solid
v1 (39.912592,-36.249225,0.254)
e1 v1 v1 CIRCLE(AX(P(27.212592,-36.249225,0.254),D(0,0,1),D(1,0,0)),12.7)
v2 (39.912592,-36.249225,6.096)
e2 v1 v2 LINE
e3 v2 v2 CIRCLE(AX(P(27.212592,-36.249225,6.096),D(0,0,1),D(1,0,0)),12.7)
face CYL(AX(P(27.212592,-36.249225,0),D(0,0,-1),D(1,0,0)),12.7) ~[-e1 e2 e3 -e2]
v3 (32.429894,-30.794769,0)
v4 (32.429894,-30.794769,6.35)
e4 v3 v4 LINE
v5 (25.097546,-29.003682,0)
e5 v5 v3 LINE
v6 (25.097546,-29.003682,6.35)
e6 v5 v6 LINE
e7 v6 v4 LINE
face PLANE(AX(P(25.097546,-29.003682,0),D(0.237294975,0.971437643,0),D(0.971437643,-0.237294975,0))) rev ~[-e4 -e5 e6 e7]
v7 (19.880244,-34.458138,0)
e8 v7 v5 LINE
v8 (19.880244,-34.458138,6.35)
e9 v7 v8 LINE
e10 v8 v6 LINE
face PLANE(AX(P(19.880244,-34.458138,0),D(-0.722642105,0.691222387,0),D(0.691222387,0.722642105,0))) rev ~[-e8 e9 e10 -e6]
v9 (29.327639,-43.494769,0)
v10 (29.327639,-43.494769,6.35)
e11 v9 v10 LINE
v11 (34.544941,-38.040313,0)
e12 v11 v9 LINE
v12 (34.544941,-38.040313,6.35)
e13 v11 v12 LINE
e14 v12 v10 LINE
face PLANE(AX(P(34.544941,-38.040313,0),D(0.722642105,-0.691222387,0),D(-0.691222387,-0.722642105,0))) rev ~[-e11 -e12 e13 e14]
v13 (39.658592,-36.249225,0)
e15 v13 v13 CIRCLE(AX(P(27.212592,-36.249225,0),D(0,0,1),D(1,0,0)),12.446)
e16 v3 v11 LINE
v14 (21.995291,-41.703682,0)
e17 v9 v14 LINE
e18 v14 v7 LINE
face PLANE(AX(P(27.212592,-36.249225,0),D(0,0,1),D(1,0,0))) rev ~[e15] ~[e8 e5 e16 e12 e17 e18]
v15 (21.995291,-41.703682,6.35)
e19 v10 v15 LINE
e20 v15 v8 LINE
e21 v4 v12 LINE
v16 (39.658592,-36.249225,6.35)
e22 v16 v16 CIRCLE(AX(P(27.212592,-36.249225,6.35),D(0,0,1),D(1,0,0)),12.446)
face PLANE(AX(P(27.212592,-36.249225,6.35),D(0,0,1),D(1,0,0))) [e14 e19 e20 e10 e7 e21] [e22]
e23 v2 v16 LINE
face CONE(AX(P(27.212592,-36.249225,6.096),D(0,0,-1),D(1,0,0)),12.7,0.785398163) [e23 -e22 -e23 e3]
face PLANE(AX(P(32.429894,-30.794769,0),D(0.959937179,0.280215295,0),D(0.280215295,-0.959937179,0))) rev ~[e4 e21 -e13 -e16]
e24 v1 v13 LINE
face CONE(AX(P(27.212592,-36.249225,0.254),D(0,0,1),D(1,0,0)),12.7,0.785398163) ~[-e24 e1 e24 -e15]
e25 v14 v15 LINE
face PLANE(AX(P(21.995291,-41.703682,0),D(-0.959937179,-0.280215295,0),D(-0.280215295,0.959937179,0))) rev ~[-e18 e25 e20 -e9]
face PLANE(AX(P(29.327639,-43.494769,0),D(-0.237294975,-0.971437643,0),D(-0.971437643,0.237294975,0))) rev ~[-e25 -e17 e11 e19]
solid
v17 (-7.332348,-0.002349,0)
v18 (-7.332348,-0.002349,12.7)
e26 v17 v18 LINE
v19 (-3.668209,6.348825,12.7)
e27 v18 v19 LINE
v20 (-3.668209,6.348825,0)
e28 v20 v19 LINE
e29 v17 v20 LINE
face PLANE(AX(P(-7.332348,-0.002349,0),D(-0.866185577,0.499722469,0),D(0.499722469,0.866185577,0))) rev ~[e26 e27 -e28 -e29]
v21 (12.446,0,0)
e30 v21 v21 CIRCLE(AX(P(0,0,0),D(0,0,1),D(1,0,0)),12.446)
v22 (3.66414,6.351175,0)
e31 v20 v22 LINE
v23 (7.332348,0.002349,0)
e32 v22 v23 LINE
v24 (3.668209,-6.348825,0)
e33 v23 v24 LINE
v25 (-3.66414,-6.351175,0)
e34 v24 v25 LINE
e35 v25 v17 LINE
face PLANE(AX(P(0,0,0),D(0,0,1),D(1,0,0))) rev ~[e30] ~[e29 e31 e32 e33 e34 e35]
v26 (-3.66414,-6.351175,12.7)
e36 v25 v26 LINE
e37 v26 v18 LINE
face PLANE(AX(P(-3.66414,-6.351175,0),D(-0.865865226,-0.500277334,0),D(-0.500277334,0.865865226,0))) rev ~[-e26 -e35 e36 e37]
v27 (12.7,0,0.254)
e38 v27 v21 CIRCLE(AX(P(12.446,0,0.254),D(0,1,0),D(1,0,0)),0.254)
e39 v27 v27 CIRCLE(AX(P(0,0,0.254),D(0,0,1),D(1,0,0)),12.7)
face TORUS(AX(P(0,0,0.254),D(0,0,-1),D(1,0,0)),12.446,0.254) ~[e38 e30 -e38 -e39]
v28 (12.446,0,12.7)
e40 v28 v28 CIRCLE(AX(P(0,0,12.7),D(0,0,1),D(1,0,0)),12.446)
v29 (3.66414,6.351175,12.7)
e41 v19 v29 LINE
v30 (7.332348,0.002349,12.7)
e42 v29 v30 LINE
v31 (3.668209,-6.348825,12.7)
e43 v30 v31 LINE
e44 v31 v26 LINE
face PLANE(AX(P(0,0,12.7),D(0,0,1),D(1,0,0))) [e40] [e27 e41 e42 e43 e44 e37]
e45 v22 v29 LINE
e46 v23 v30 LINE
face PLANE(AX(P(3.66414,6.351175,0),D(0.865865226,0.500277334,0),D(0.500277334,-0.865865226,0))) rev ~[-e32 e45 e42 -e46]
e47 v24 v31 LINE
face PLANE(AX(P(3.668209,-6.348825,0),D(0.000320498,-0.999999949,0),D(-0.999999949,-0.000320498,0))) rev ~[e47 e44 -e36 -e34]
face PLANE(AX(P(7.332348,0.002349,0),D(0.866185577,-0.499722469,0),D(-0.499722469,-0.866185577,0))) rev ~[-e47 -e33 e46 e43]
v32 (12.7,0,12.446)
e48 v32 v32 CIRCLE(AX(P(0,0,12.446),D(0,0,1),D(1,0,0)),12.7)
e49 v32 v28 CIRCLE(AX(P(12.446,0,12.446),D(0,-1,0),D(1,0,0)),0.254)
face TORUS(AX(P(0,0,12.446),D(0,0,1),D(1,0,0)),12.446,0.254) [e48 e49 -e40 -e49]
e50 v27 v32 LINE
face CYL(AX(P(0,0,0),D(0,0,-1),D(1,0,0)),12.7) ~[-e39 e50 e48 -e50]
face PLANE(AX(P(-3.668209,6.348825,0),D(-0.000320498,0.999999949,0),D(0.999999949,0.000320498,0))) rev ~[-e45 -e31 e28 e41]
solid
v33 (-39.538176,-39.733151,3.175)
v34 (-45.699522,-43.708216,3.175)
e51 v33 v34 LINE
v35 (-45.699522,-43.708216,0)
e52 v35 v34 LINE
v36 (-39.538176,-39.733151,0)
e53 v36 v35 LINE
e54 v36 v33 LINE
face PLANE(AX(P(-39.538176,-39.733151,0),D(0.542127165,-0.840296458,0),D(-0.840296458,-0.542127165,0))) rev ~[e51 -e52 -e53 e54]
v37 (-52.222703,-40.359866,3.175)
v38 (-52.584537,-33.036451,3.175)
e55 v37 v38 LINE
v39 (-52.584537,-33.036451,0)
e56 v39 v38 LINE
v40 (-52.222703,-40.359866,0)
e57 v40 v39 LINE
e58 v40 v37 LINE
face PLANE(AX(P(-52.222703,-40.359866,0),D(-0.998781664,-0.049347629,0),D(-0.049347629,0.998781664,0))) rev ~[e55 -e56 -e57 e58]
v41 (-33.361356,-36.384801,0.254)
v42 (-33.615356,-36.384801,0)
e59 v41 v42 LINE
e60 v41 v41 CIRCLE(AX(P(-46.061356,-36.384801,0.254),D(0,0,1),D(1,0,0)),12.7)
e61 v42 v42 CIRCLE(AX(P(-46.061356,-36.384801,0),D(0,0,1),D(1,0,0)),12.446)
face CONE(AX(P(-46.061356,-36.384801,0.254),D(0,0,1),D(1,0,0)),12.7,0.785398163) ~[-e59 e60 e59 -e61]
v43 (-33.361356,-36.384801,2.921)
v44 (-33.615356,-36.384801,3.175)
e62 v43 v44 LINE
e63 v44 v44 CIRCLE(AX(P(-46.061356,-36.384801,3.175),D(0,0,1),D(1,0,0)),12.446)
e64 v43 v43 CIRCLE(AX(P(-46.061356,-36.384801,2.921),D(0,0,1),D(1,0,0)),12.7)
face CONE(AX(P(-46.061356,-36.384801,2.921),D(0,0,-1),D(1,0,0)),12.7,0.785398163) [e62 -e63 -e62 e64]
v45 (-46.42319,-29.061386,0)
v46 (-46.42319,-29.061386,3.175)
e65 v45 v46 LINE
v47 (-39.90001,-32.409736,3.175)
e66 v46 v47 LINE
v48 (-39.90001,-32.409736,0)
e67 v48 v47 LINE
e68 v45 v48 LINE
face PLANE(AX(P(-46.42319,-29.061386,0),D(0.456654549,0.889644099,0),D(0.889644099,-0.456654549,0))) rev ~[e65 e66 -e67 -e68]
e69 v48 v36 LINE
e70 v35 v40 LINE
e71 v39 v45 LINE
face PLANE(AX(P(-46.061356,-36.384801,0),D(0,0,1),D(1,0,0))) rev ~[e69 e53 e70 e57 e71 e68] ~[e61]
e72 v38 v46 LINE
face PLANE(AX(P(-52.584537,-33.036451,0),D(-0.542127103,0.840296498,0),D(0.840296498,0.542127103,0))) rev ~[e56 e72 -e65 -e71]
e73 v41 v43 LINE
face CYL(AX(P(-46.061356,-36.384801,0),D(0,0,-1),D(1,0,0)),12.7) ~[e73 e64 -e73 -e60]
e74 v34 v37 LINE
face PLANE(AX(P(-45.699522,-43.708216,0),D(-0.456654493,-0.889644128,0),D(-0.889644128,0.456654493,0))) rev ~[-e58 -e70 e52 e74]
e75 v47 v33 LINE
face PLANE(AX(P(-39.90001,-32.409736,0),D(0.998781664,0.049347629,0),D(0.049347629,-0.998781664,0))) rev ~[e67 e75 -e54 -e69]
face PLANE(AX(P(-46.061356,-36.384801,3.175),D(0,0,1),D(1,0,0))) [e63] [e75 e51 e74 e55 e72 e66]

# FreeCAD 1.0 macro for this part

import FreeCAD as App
import Part
import Sketcher

V = App.Vector
Q = App.Units.Quantity


def edges_at(feature, points):
    """Names of the edges that pass closest to the given points."""
    edges = feature.Shape.Edges
    near = lambda p: min(range(len(edges)), key=lambda i: edges[i].distToShape(Part.Vertex(*p))[0])
    return sorted({f"Edge{near(p) + 1}" for p in points})


def add_polygon(sketch, points):
    """Adds a closed chain of lines whose ends are joined by coincident constraints."""
    first, n = sketch.GeometryCount, len(points)
    for a, b in zip(points, points[1:] + points[:1]):
        sketch.addGeometry(Part.LineSegment(App.Vector(*a, 0), App.Vector(*b, 0)), False)
    for i in range(n):
        sketch.addConstraint(Sketcher.Constraint("Coincident", first + i, 2, first + (i + 1) % n, 1))

doc = App.newDocument("Part")
body = doc.addObject("PartDesign::Body", "Body")

# Sketch on XY plane
sketch1 = body.newObject("Sketcher::SketchObject", "Sketch")
sketch1.AttachmentSupport = (doc.getObject("XY_Plane"), [""])
sketch1.MapMode = "FlatFace"
sketch1.addGeometry(Part.Circle(V(0, 0, 0), V(0, 0, 1), 13), False)  # 0
add_polygon(sketch1, [(-4, 6), (4, 6), (7, 0), (4, -6), (-4, -6), (-7, 0)])  # lines 1-6
sketch1.addConstraint([
    Sketcher.Constraint("Coincident", 0, 3, -1, 1),
    Sketcher.Constraint("Symmetric", 1, 2, 4, 2, -1, 1),
    Sketcher.Constraint("Symmetric", 2, 2, 5, 2, -1, 1),
    Sketcher.Constraint("Symmetric", 3, 2, 6, 2, -1, 1),
    Sketcher.Constraint("Equal", 1, 2),
    Sketcher.Constraint("Equal", 2, 3),
    Sketcher.Constraint("Diameter", 0, Q("1 in")),
    Sketcher.Constraint("DistanceY", 3, 2, 1, 2, Q("0.5 in")),
    Sketcher.Constraint("Distance", 1, Q("7.332349 mm")),
    Sketcher.Constraint("DistanceX", -1, 1, 1, 2, Q("3.66414 mm")),
    Sketcher.Constraint("DistanceY", -1, 1, 2, 2, Q("0.002349 mm")),
])
pad1 = body.newObject("PartDesign::Pad", "Pad")
pad1.Profile = sketch1
pad1.Length = Q("0.5 in")
doc.recompute()

fillet = body.newObject("PartDesign::Fillet", "Fillet")
fillet.Base = (pad1, edges_at(pad1, [(-12.7, 0, 12.7), (-12.7, 0, 0)]))
fillet.Radius = Q("0.01 in")
body2 = doc.addObject("PartDesign::Body", "Body001")

# Sketch on XY plane
sketch2 = body2.newObject("Sketcher::SketchObject", "Sketch001")
sketch2.AttachmentSupport = (doc.getObject("XY_Plane001"), [""])
sketch2.MapMode = "FlatFace"
sketch2.addGeometry(Part.Circle(V(-46, -36, 0), V(0, 0, 1), 13), False)  # 0
add_polygon(sketch2, [(-46, -29), (-40, -32), (-40, -40), (-46, -44), (-52, -40), (-53, -33)])  # lines 1-6
sketch2.addConstraint([
    Sketcher.Constraint("Parallel", 1, 4),
    Sketcher.Constraint("Parallel", 2, 5),
    Sketcher.Constraint("Parallel", 3, 6),
    Sketcher.Constraint("Equal", 1, 2),
    Sketcher.Constraint("Equal", 2, 3),
    Sketcher.Constraint("Equal", 3, 4),
    Sketcher.Constraint("Diameter", 0, Q("1 in")),
    Sketcher.Constraint("DistanceY", 0, 3, -1, 1, Q("36.384801 mm")),
    Sketcher.Constraint("DistanceY", 2, 2, 5, 2, Q("6.6967 mm")),
    Sketcher.Constraint("Distance", 2, Q("7.332348 mm")),
    Sketcher.Constraint("DistanceX", 1, 2, -1, 1, Q("39.90001 mm")),
    Sketcher.Constraint("DistanceY", 2, 2, -1, 1, Q("39.733151 mm")),
    Sketcher.Constraint("DistanceX", 6, 2, -1, 1, Q("46.42319 mm")),
    Sketcher.Constraint("DistanceX", 0, 3, 2, 2, Q("6.52318 mm")),
    Sketcher.Constraint("DistanceY", 3, 2, 1, 2, Q("11.29848 mm")),
])
pad2 = body2.newObject("PartDesign::Pad", "Pad001")
pad2.Profile = sketch2
pad2.Length = Q("0.125 in")
doc.recompute()

chamfer = body2.newObject("PartDesign::Chamfer", "Chamfer")
chamfer.Base = (pad2, edges_at(pad2, [(-58.761, -36.385, 3.175), (-58.761, -36.385, 0)]))
chamfer.Size = Q("0.01 in")
body3 = doc.addObject("PartDesign::Body", "Body002")

# Sketch on XY plane
sketch3 = body3.newObject("Sketcher::SketchObject", "Sketch002")
sketch3.AttachmentSupport = (doc.getObject("XY_Plane002"), [""])
sketch3.MapMode = "FlatFace"
sketch3.addGeometry(Part.Circle(V(27, -36, 0), V(0, 0, 1), 13), False)  # 0
add_polygon(sketch3, [(25, -29), (32, -31), (35, -38), (29, -43), (22, -42), (20, -34)])  # lines 1-6
sketch3.addConstraint([
    Sketcher.Constraint("Parallel", 1, 4),
    Sketcher.Constraint("Parallel", 2, 5),
    Sketcher.Constraint("Parallel", 3, 6),
    Sketcher.Constraint("Equal", 1, 2),
    Sketcher.Constraint("Equal", 2, 3),
    Sketcher.Constraint("Equal", 3, 4),
    Sketcher.Constraint("Diameter", 0, Q("1 in")),
    Sketcher.Constraint("DistanceY", 3, 2, 1, 2, Q("0.5 in")),
    Sketcher.Constraint("DistanceX", 0, 3, 1, 2, Q("5.217302 mm")),
    Sketcher.Constraint("DistanceX", 4, 2, 0, 3, Q("5.217301 mm")),
    Sketcher.Constraint("DistanceY", 1, 2, -1, 1, Q("30.794769 mm")),
    Sketcher.Constraint("DistanceX", -1, 1, 2, 2, Q("34.544941 mm")),
    Sketcher.Constraint("DistanceX", -1, 1, 3, 2, Q("29.327639 mm")),
    Sketcher.Constraint("DistanceX", -1, 1, 4, 2, Q("21.995291 mm")),
    Sketcher.Constraint("DistanceY", 0, 3, -1, 1, Q("36.249225 mm")),
])
pad3 = body3.newObject("PartDesign::Pad", "Pad002")
pad3.Profile = sketch3
pad3.Length = Q("0.25 in")
doc.recompute()

chamfer2 = body3.newObject("PartDesign::Chamfer", "Chamfer001")
chamfer2.Base = (pad3, edges_at(pad3, [(14.513, -36.249, 6.35), (14.513, -36.249, 0)]))
chamfer2.Size = Q("0.01 in")

doc.recompute()
